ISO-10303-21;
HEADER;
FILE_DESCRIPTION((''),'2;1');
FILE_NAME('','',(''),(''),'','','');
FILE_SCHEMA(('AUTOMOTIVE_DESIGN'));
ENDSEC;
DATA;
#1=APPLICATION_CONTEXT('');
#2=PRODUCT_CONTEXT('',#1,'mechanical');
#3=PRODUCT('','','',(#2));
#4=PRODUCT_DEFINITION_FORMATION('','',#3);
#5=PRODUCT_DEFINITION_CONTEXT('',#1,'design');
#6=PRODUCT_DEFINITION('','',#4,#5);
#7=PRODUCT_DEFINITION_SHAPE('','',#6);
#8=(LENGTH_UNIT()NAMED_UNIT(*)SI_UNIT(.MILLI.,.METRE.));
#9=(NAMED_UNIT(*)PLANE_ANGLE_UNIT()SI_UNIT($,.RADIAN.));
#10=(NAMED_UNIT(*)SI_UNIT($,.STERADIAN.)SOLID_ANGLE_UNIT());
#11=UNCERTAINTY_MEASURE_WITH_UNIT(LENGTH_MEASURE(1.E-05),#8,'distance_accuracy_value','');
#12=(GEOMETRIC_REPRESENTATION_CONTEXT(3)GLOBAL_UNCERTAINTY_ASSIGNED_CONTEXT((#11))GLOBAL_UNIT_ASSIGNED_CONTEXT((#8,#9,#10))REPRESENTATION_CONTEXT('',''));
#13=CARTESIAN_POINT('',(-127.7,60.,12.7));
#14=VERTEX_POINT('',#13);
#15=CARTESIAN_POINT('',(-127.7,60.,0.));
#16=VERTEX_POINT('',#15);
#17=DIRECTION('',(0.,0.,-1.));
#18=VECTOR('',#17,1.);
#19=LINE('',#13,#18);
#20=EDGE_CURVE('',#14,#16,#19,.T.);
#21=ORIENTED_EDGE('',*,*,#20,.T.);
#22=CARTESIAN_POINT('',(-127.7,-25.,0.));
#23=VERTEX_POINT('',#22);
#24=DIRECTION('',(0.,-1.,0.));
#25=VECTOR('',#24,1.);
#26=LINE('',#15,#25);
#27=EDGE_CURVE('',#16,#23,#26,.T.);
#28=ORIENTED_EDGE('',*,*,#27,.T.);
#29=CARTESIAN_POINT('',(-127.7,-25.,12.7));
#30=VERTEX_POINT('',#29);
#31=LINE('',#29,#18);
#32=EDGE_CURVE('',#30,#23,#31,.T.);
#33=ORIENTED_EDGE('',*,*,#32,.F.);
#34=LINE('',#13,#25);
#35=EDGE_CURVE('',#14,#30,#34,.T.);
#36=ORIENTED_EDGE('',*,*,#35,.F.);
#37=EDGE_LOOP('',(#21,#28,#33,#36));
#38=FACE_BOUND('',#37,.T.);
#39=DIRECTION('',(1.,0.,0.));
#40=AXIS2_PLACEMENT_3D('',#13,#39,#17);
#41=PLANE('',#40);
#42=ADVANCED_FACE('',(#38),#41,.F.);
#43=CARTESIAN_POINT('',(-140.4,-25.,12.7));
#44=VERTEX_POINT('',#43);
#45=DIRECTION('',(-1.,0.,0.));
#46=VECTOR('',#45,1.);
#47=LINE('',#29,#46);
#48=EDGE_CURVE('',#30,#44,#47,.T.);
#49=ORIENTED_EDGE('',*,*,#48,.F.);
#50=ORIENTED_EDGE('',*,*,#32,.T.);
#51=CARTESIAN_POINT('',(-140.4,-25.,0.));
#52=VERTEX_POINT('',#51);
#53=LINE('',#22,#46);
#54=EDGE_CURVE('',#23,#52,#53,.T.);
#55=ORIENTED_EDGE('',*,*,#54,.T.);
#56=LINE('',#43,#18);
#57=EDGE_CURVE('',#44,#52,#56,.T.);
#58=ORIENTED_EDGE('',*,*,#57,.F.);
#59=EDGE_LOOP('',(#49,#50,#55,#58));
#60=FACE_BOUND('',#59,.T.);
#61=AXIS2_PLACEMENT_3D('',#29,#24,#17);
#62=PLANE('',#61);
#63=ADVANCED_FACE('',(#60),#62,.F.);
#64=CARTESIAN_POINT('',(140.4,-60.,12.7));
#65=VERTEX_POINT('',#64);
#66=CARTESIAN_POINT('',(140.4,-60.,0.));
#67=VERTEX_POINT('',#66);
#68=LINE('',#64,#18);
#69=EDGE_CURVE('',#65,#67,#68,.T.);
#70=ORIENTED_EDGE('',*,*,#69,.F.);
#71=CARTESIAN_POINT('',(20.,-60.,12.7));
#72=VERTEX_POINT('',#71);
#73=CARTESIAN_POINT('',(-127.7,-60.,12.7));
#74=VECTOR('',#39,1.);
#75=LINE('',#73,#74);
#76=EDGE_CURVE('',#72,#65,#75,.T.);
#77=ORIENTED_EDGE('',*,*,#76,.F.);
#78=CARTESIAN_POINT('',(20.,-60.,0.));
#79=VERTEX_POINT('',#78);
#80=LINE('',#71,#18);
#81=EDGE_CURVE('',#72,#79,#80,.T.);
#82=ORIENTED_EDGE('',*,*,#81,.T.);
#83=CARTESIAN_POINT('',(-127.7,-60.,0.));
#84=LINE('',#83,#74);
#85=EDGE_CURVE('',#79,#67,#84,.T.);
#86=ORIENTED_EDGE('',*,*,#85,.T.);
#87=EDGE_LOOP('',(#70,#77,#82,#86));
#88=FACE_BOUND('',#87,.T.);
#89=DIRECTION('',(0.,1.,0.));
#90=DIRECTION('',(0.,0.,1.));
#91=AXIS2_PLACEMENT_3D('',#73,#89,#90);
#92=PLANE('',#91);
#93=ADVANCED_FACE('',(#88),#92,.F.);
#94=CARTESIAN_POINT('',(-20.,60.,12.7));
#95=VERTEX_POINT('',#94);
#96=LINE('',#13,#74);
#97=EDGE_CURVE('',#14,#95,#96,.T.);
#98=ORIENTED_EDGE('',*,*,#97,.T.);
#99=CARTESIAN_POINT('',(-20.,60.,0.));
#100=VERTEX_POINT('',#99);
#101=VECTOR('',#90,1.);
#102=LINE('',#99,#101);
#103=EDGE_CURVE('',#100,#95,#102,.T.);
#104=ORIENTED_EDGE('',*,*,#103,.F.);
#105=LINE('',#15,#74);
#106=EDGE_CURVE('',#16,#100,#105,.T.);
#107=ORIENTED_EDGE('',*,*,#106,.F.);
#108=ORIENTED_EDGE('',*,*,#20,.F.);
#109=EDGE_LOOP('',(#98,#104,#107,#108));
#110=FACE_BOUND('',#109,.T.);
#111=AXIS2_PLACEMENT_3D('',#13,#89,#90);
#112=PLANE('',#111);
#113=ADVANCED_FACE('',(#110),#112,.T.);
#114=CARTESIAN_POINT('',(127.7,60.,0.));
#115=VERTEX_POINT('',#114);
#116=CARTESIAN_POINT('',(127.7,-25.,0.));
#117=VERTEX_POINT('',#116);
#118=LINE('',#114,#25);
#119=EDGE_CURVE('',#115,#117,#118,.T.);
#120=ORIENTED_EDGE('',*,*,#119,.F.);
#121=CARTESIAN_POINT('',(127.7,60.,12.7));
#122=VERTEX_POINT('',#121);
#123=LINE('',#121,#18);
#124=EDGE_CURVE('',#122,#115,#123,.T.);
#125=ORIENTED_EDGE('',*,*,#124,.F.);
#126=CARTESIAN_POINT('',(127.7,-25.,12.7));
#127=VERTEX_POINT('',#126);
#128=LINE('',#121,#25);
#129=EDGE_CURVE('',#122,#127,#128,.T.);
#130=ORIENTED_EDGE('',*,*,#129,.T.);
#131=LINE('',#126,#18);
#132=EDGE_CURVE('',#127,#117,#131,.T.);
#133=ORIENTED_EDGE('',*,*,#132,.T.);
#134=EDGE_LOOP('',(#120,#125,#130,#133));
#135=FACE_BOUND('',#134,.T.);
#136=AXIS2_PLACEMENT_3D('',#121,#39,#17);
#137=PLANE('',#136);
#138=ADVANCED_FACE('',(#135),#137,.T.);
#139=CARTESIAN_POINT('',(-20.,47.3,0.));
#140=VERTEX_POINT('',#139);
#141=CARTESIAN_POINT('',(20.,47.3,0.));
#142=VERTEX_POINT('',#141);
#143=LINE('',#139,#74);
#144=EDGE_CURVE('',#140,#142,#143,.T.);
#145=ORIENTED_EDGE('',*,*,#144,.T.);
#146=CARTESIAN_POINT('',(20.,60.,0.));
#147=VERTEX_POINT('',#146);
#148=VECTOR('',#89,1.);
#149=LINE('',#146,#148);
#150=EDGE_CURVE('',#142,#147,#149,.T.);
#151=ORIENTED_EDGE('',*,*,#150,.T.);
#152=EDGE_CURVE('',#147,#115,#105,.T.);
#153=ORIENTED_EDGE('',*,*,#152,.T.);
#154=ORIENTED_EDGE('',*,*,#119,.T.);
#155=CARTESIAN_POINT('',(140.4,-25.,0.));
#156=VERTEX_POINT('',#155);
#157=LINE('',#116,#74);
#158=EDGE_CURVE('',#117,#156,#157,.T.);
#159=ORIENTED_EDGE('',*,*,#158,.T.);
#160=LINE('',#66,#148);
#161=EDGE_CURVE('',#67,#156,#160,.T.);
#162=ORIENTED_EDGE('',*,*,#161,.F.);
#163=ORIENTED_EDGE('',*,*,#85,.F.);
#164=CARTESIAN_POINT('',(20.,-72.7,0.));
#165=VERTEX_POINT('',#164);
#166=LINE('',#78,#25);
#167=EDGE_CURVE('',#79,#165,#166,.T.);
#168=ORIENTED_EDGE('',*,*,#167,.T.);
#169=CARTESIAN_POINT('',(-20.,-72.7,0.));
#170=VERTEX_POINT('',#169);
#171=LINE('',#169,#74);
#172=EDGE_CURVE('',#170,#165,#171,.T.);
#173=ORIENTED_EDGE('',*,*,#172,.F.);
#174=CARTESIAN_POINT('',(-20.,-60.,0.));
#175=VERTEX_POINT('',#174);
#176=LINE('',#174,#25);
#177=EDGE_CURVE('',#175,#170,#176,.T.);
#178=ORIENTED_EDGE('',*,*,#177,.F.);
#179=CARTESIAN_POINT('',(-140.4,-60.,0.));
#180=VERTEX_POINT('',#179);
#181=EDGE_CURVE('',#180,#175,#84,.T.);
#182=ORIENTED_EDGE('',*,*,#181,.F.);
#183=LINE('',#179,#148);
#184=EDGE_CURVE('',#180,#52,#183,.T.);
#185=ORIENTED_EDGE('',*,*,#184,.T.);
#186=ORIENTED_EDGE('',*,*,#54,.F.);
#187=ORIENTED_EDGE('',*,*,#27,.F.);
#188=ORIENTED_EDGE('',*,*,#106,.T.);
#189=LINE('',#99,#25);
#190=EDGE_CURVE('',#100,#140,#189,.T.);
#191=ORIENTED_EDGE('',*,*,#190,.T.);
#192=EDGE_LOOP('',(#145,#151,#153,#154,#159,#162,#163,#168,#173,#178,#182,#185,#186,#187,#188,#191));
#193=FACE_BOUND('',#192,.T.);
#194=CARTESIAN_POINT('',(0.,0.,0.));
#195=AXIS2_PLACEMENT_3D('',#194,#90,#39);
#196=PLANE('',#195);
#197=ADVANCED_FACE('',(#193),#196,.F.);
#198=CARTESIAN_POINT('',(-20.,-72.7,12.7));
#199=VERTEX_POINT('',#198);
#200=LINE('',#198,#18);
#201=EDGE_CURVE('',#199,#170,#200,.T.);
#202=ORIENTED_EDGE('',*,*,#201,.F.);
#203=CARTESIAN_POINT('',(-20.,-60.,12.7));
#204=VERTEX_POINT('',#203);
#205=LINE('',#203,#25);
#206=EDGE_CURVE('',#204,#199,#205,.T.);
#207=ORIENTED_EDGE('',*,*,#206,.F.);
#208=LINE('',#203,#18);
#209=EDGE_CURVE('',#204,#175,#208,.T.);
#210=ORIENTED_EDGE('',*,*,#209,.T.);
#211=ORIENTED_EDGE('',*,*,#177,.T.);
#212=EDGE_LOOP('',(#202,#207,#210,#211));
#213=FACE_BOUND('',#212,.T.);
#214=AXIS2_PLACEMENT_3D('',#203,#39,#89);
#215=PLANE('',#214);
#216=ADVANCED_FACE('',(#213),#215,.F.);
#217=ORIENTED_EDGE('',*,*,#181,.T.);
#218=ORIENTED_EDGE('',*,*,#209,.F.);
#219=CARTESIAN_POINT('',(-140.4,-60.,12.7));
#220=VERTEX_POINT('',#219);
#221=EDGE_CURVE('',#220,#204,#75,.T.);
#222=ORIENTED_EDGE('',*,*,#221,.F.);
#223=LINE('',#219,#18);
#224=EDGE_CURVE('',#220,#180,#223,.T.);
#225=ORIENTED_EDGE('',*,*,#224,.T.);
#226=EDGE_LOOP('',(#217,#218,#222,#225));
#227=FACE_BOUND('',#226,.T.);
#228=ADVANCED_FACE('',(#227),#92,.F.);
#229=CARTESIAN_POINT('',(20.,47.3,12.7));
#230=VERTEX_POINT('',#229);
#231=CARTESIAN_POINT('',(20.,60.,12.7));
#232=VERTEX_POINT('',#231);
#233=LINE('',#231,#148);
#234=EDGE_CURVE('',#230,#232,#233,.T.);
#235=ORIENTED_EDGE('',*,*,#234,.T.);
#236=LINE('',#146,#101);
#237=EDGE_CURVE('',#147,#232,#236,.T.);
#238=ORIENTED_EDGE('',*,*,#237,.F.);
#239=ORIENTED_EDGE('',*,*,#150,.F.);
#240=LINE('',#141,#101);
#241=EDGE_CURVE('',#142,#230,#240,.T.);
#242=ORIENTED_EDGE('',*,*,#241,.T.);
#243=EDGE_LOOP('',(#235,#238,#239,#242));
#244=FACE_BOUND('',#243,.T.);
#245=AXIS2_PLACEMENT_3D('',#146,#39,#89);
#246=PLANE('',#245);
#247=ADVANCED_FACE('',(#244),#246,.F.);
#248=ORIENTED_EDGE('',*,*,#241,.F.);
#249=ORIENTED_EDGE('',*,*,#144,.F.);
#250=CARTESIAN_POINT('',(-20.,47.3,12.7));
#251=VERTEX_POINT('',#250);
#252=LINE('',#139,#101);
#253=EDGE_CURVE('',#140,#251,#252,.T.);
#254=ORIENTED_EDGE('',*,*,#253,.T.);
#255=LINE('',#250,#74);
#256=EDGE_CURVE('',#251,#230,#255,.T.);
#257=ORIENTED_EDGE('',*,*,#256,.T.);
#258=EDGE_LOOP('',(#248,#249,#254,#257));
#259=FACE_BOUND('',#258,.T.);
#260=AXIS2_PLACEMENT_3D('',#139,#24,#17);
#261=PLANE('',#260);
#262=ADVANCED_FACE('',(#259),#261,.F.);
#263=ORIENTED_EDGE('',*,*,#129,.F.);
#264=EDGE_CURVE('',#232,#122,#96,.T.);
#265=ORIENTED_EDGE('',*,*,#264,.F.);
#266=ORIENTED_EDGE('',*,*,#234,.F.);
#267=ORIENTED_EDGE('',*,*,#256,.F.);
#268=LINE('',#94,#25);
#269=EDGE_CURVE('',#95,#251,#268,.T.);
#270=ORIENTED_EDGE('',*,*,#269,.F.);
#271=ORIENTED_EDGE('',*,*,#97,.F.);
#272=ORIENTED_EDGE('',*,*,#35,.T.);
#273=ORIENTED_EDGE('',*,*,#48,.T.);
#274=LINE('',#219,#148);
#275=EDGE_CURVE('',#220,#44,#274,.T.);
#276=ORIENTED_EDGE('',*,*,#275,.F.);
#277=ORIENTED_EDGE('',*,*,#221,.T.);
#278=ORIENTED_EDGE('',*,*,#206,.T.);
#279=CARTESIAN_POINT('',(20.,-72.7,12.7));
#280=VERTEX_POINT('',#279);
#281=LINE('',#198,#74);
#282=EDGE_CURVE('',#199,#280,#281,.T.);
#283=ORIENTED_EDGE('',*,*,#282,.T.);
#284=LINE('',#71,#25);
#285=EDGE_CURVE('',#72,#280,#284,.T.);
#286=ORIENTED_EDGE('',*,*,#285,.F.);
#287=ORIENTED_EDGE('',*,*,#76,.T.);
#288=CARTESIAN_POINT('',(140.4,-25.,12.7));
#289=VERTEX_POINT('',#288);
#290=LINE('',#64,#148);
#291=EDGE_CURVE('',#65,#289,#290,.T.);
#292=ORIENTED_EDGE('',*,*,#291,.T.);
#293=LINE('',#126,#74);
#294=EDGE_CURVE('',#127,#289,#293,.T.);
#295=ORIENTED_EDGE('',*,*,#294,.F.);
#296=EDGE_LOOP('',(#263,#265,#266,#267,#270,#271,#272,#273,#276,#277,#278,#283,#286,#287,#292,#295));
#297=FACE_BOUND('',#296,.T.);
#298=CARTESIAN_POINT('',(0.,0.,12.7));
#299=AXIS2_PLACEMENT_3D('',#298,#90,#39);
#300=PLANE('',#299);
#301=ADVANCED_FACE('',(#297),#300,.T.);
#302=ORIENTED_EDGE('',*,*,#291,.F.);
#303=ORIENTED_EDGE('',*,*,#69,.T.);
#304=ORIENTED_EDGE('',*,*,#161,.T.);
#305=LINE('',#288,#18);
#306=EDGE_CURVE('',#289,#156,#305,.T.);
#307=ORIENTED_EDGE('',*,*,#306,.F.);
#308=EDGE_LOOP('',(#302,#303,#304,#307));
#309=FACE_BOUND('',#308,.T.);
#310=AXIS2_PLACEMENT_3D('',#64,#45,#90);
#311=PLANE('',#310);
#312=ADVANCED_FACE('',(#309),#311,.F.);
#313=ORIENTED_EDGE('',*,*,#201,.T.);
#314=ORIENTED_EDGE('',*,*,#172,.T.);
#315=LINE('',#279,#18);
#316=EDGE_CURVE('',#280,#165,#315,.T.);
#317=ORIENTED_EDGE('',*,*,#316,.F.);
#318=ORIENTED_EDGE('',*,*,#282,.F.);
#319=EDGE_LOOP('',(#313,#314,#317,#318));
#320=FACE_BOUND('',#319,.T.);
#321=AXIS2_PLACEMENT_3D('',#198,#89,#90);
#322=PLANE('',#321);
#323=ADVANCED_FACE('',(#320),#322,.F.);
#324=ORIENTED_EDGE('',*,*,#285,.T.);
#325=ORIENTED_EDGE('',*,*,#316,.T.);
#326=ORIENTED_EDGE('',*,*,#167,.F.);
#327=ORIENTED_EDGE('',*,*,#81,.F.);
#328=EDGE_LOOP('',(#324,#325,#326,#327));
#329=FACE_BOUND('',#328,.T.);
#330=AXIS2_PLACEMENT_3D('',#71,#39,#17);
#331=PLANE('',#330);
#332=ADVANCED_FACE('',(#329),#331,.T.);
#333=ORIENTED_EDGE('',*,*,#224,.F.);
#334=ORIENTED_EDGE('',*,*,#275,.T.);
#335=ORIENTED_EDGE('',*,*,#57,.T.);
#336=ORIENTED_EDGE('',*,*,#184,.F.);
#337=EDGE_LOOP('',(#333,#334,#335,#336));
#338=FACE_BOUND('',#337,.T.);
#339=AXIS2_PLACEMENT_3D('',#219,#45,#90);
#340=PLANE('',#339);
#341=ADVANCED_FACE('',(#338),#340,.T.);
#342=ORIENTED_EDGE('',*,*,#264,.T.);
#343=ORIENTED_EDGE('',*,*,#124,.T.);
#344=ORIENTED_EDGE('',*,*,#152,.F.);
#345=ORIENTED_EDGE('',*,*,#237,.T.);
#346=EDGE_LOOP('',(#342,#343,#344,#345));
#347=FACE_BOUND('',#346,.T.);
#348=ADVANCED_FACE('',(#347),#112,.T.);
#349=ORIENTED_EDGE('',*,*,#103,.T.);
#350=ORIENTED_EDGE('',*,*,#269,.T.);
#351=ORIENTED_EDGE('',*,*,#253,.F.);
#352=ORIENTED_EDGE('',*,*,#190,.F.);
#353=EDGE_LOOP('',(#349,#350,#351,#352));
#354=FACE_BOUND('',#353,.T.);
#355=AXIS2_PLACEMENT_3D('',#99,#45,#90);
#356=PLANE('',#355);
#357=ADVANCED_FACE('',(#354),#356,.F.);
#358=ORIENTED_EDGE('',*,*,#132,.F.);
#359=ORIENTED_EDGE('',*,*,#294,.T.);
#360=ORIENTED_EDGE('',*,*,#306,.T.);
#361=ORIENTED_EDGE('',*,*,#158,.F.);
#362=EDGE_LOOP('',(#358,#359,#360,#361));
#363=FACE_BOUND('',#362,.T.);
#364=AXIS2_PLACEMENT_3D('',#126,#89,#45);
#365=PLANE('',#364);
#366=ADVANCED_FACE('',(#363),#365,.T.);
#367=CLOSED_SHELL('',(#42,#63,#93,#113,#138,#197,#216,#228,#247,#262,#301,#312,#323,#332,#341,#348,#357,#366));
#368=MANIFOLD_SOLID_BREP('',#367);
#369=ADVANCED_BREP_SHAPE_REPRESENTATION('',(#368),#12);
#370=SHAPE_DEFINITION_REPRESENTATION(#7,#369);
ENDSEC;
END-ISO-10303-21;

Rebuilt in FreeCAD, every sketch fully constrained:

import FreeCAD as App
import Part
import Sketcher

V = App.Vector

doc = App.newDocument("Part")
body = doc.addObject("PartDesign::Body", "Body")

# Sketch on XY plane
sketch1 = body.newObject("Sketcher::SketchObject", "Sketch")
sketch1.AttachmentSupport = (doc.getObject("XY_Plane"), [""])
sketch1.MapMode = "FlatFace"
sketch1.addGeometry(Part.LineSegment(V(128, 60, 0), V(-128, 60, 0)), False)
sketch1.addGeometry(Part.LineSegment(V(-128, 60, 0), V(-128, -25, 0)), False)
sketch1.addGeometry(Part.LineSegment(V(-128, -25, 0), V(-140, -25, 0)), False)
sketch1.addGeometry(Part.LineSegment(V(-140, -25, 0), V(-140, -60, 0)), False)
sketch1.addGeometry(Part.LineSegment(V(-140, -60, 0), V(-20, -60, 0)), False)
sketch1.addGeometry(Part.LineSegment(V(-20, -60, 0), V(-20, -73, 0)), False)
sketch1.addGeometry(Part.LineSegment(V(-20, -73, 0), V(20, -73, 0)), False)
sketch1.addGeometry(Part.LineSegment(V(20, -73, 0), V(20, -60, 0)), False)
sketch1.addGeometry(Part.LineSegment(V(20, -60, 0), V(140, -60, 0)), False)
sketch1.addGeometry(Part.LineSegment(V(140, -60, 0), V(140, -25, 0)), False)
sketch1.addGeometry(Part.LineSegment(V(140, -25, 0), V(128, -25, 0)), False)
sketch1.addGeometry(Part.LineSegment(V(128, -25, 0), V(128, 60, 0)), False)
sketch1.addConstraint(Sketcher.Constraint("Coincident", 0, 2, 1, 1))
sketch1.addConstraint(Sketcher.Constraint("Coincident", 1, 2, 2, 1))
sketch1.addConstraint(Sketcher.Constraint("Coincident", 2, 2, 3, 1))
sketch1.addConstraint(Sketcher.Constraint("Coincident", 3, 2, 4, 1))
sketch1.addConstraint(Sketcher.Constraint("Coincident", 4, 2, 5, 1))
sketch1.addConstraint(Sketcher.Constraint("Coincident", 5, 2, 6, 1))
sketch1.addConstraint(Sketcher.Constraint("Coincident", 6, 2, 7, 1))
sketch1.addConstraint(Sketcher.Constraint("Coincident", 7, 2, 8, 1))
sketch1.addConstraint(Sketcher.Constraint("Coincident", 8, 2, 9, 1))
sketch1.addConstraint(Sketcher.Constraint("Coincident", 9, 2, 10, 1))
sketch1.addConstraint(Sketcher.Constraint("Coincident", 10, 2, 11, 1))
sketch1.addConstraint(Sketcher.Constraint("Coincident", 11, 2, 0, 1))
sketch1.addConstraint(Sketcher.Constraint("Horizontal", 0))
sketch1.addConstraint(Sketcher.Constraint("Vertical", 1))
sketch1.addConstraint(Sketcher.Constraint("Horizontal", 2))
sketch1.addConstraint(Sketcher.Constraint("Vertical", 3))
sketch1.addConstraint(Sketcher.Constraint("Horizontal", 4))
sketch1.addConstraint(Sketcher.Constraint("Vertical", 5))
sketch1.addConstraint(Sketcher.Constraint("Horizontal", 6))
sketch1.addConstraint(Sketcher.Constraint("Vertical", 7))
sketch1.addConstraint(Sketcher.Constraint("Horizontal", 8))
sketch1.addConstraint(Sketcher.Constraint("Vertical", 9))
sketch1.addConstraint(Sketcher.Constraint("Horizontal", 10))
sketch1.addConstraint(Sketcher.Constraint("Vertical", 11))
sketch1.addConstraint(Sketcher.Constraint("Symmetric", 4, 2, 7, 2, -2))
sketch1.addConstraint(Sketcher.Constraint("Symmetric", 2, 2, 9, 2, -2))
sketch1.addConstraint(Sketcher.Constraint("Equal", 2, 10))
sketch1.addConstraint(Sketcher.Constraint("Equal", 10, 5))
sketch1.addConstraint(Sketcher.Constraint("DistanceX", 6, 1, 6, 2, 40.0))
sketch1.addConstraint(Sketcher.Constraint("DistanceY", 1, 2, 1, 1, 85.0))
sketch1.addConstraint(Sketcher.Constraint("DistanceY", 3, 2, 3, 1, 35.0))
sketch1.addConstraint(Sketcher.Constraint("DistanceX", 0, 2, 0, 1, 255.4))
sketch1.addConstraint(Sketcher.Constraint("DistanceX", 2, 2, 2, 1, 12.7))
sketch1.addConstraint(Sketcher.Constraint("DistanceY", -1, 1, 0, 2, 60.0))
pad1 = body.newObject("PartDesign::Pad", "Pad")
pad1.Profile = sketch1
pad1.Length = 12.7

# Sketch on XY plane
sketch2 = body.newObject("Sketcher::SketchObject", "Sketch001")
sketch2.AttachmentSupport = (doc.getObject("XY_Plane"), [""])
sketch2.MapMode = "FlatFace"
sketch2.AttachmentOffset = App.Placement(V(0, 0, 12.7), App.Rotation())
sketch2.addGeometry(Part.LineSegment(V(-20, 60, 0), V(-20, 47, 0)), False)
sketch2.addGeometry(Part.LineSegment(V(-20, 47, 0), V(20, 47, 0)), False)
sketch2.addGeometry(Part.LineSegment(V(20, 47, 0), V(20, 60, 0)), False)
sketch2.addGeometry(Part.LineSegment(V(20, 60, 0), V(-20, 60, 0)), False)
sketch2.addConstraint(Sketcher.Constraint("Coincident", 0, 2, 1, 1))
sketch2.addConstraint(Sketcher.Constraint("Coincident", 1, 2, 2, 1))
sketch2.addConstraint(Sketcher.Constraint("Coincident", 2, 2, 3, 1))
sketch2.addConstraint(Sketcher.Constraint("Coincident", 3, 2, 0, 1))
sketch2.addConstraint(Sketcher.Constraint("Vertical", 0))
sketch2.addConstraint(Sketcher.Constraint("Horizontal", 1))
sketch2.addConstraint(Sketcher.Constraint("Vertical", 2))
sketch2.addConstraint(Sketcher.Constraint("Horizontal", 3))
sketch2.addConstraint(Sketcher.Constraint("DistanceX", 1, 1, 1, 2, 40.0))
sketch2.addConstraint(Sketcher.Constraint("DistanceY", 0, 2, 0, 1, 12.7))
sketch2.addConstraint(Sketcher.Constraint("DistanceX", 0, 2, -1, 1, 20.0))
sketch2.addConstraint(Sketcher.Constraint("DistanceY", -1, 1, 2, 2, 60.0))
pocket1 = body.newObject("PartDesign::Pocket", "Pocket")
pocket1.Profile = sketch2
pocket1.Length = 12.7

doc.recompute()
